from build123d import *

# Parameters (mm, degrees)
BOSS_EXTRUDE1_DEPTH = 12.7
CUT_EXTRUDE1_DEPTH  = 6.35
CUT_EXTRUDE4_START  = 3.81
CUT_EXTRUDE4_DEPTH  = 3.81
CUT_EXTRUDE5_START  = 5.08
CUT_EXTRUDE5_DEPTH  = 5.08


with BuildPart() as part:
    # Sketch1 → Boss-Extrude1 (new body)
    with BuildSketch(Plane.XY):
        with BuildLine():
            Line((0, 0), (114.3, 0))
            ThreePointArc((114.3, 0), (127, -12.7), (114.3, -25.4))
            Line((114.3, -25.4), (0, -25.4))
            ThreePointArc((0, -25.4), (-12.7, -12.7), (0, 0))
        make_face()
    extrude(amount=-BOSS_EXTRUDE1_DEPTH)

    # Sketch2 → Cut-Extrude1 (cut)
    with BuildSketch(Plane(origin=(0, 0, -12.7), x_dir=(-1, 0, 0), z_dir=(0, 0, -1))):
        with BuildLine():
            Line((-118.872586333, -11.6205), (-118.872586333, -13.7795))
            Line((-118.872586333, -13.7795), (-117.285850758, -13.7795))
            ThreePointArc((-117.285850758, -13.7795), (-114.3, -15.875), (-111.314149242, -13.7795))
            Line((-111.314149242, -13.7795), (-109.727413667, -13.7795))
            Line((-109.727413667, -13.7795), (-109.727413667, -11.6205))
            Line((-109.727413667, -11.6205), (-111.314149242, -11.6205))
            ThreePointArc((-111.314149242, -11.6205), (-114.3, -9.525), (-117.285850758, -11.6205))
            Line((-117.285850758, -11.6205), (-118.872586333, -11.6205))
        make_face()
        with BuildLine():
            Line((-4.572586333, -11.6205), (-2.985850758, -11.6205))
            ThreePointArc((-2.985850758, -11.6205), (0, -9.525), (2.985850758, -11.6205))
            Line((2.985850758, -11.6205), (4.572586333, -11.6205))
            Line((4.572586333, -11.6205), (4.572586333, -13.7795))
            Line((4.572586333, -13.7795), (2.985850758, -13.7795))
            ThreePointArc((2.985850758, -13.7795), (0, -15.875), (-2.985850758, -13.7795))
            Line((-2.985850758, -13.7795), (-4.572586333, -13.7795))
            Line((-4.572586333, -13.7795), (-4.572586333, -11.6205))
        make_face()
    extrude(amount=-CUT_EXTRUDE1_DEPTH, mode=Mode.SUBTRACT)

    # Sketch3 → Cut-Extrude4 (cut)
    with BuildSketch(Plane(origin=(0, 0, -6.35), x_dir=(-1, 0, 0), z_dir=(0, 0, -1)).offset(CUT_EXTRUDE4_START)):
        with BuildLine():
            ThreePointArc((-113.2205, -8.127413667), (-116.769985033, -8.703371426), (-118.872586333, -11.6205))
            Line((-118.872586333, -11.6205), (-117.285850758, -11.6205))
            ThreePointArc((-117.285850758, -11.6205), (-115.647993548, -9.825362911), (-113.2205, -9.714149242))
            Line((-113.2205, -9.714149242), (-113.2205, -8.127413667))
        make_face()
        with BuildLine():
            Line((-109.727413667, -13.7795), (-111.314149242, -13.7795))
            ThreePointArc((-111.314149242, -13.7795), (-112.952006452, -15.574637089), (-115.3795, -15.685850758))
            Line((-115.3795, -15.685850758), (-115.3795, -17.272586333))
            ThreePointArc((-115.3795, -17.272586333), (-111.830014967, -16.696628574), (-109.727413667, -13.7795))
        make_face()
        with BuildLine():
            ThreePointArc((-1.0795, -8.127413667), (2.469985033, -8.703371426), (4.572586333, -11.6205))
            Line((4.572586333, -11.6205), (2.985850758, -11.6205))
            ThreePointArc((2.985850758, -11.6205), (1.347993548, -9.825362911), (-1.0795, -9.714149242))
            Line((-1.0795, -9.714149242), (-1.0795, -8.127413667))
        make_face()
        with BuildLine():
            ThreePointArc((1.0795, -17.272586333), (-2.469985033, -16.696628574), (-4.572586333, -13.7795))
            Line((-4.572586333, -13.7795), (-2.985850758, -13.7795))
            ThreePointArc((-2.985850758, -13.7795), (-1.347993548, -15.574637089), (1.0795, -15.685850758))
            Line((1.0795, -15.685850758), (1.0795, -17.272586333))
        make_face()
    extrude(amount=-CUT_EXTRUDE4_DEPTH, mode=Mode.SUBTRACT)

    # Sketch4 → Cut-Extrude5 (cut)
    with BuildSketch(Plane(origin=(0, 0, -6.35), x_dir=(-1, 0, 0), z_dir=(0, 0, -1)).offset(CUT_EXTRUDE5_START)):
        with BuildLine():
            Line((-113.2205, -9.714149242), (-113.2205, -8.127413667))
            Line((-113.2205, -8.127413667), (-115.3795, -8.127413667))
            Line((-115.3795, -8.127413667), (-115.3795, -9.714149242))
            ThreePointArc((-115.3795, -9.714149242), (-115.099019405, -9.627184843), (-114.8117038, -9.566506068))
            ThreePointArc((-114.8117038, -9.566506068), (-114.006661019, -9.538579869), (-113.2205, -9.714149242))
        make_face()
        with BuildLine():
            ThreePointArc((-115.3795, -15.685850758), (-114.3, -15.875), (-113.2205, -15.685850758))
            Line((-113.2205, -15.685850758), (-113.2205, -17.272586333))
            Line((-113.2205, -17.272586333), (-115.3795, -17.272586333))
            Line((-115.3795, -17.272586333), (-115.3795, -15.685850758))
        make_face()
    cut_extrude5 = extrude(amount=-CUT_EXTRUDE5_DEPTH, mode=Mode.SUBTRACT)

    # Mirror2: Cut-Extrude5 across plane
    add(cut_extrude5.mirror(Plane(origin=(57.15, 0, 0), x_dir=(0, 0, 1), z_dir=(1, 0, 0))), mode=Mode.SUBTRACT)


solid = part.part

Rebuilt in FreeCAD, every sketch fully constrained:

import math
import FreeCAD as App
import Part
import Sketcher
from FreeCAD import Vector
Q = App.Units.Quantity

doc = App.newDocument("Part")
body = doc.addObject("PartDesign::Body", "Body")

# Sketch on XY plane
sketch1 = body.newObject("Sketcher::SketchObject", "Sketch")
sketch1.AttachmentSupport = (doc.getObject("XY_Plane"), [""])
sketch1.MapMode = "FlatFace"
sketch1.addGeometry(Part.LineSegment(Vector(114, 0, 0), Vector(0, 0, 0)), False)
sketch1.addGeometry(Part.ArcOfCircle(Part.Circle(Vector(0, -13, 0), Vector(0, 0, 1), 13), math.radians(90), math.radians(270)), False)
sketch1.addGeometry(Part.LineSegment(Vector(0, -25, 0), Vector(114, -25, 0)), False)
sketch1.addGeometry(Part.ArcOfCircle(Part.Circle(Vector(114, -13, 0), Vector(0, 0, 1), 13), math.radians(-90), math.radians(90)), False)
sketch1.addConstraint(Sketcher.Constraint("Tangent", 0, 2, 1, 1))
sketch1.addConstraint(Sketcher.Constraint("Tangent", 1, 2, 2, 1))
sketch1.addConstraint(Sketcher.Constraint("Tangent", 2, 2, 3, 1))
sketch1.addConstraint(Sketcher.Constraint("Tangent", 3, 2, 0, 1))
sketch1.addConstraint(Sketcher.Constraint("Horizontal", 0))
sketch1.addConstraint(Sketcher.Constraint("Horizontal", 2))
sketch1.addConstraint(Sketcher.Constraint("Coincident", 0, 2, -1, 1))
sketch1.addConstraint(Sketcher.Constraint("Radius", 1, Q("0.5 in")))
sketch1.addConstraint(Sketcher.Constraint("DistanceX", 0, 2, 0, 1, Q("4.5 in")))
pad1 = body.newObject("PartDesign::Pad", "Pad")
pad1.Profile = sketch1
pad1.Length = Q("0.5 in")
pad1.Reversed = True

# Sketch on XY plane
sketch2 = body.newObject("Sketcher::SketchObject", "Sketch001")
sketch2.AttachmentSupport = (doc.getObject("XY_Plane"), [""])
sketch2.MapMode = "FlatFace"
sketch2.AttachmentOffset = App.Placement(Vector(0, 0, -0.5 * 25.4), App.Rotation())
sketch2.addGeometry(Part.LineSegment(Vector(118.9, -11.6, 0), Vector(118.9, -13.8, 0)), False)
sketch2.addGeometry(Part.LineSegment(Vector(118.9, -13.8, 0), Vector(117.3, -13.8, 0)), False)
sketch2.addGeometry(Part.ArcOfCircle(Part.Circle(Vector(114.3, -12.7, 0), Vector(0, 0, 1), 3.2), math.radians(-160), math.radians(-20)), False)
sketch2.addGeometry(Part.LineSegment(Vector(111.3, -13.8, 0), Vector(109.7, -13.8, 0)), False)
sketch2.addGeometry(Part.LineSegment(Vector(109.7, -13.8, 0), Vector(109.7, -11.6, 0)), False)
sketch2.addGeometry(Part.LineSegment(Vector(109.7, -11.6, 0), Vector(111.3, -11.6, 0)), False)
sketch2.addGeometry(Part.ArcOfCircle(Part.Circle(Vector(114.3, -12.7, 0), Vector(0, 0, 1), 3.2), math.radians(20), math.radians(160)), False)
sketch2.addGeometry(Part.LineSegment(Vector(117.3, -11.6, 0), Vector(118.9, -11.6, 0)), False)
sketch2.addGeometry(Part.LineSegment(Vector(3, -11.6, 0), Vector(4.6, -11.6, 0)), False)
sketch2.addGeometry(Part.LineSegment(Vector(4.6, -11.6, 0), Vector(4.6, -13.8, 0)), False)
sketch2.addGeometry(Part.LineSegment(Vector(4.6, -13.8, 0), Vector(3, -13.8, 0)), False)
sketch2.addGeometry(Part.ArcOfCircle(Part.Circle(Vector(0, -12.7, 0), Vector(0, 0, 1), 3.2), math.radians(-160), math.radians(-20)), False)
sketch2.addGeometry(Part.LineSegment(Vector(-3, -13.8, 0), Vector(-4.6, -13.8, 0)), False)
sketch2.addGeometry(Part.LineSegment(Vector(-4.6, -13.8, 0), Vector(-4.6, -11.6, 0)), False)
sketch2.addGeometry(Part.LineSegment(Vector(-4.6, -11.6, 0), Vector(-3, -11.6, 0)), False)
sketch2.addGeometry(Part.ArcOfCircle(Part.Circle(Vector(0, -12.7, 0), Vector(0, 0, 1), 3.2), math.radians(20), math.radians(160)), False)
sketch2.addConstraint(Sketcher.Constraint("Coincident", 0, 2, 1, 1))
sketch2.addConstraint(Sketcher.Constraint("Coincident", 1, 2, 2, 2))
sketch2.addConstraint(Sketcher.Constraint("Coincident", 2, 1, 3, 1))
sketch2.addConstraint(Sketcher.Constraint("Coincident", 3, 2, 4, 1))
sketch2.addConstraint(Sketcher.Constraint("Coincident", 4, 2, 5, 1))
sketch2.addConstraint(Sketcher.Constraint("Coincident", 5, 2, 6, 2))
sketch2.addConstraint(Sketcher.Constraint("Coincident", 6, 1, 7, 1))
sketch2.addConstraint(Sketcher.Constraint("Coincident", 7, 2, 0, 1))
sketch2.addConstraint(Sketcher.Constraint("Coincident", 8, 2, 9, 1))
sketch2.addConstraint(Sketcher.Constraint("Coincident", 9, 2, 10, 1))
sketch2.addConstraint(Sketcher.Constraint("Coincident", 10, 2, 11, 2))
sketch2.addConstraint(Sketcher.Constraint("Coincident", 11, 1, 12, 1))
sketch2.addConstraint(Sketcher.Constraint("Coincident", 12, 2, 13, 1))
sketch2.addConstraint(Sketcher.Constraint("Coincident", 13, 2, 14, 1))
sketch2.addConstraint(Sketcher.Constraint("Coincident", 14, 2, 15, 2))
sketch2.addConstraint(Sketcher.Constraint("Coincident", 15, 1, 8, 1))
sketch2.addConstraint(Sketcher.Constraint("Vertical", 0))
sketch2.addConstraint(Sketcher.Constraint("Horizontal", 1))
sketch2.addConstraint(Sketcher.Constraint("Horizontal", 3))
sketch2.addConstraint(Sketcher.Constraint("Vertical", 4))
sketch2.addConstraint(Sketcher.Constraint("Horizontal", 5))
sketch2.addConstraint(Sketcher.Constraint("Horizontal", 7))
sketch2.addConstraint(Sketcher.Constraint("Horizontal", 8))
sketch2.addConstraint(Sketcher.Constraint("Vertical", 9))
sketch2.addConstraint(Sketcher.Constraint("Horizontal", 10))
sketch2.addConstraint(Sketcher.Constraint("Horizontal", 12))
sketch2.addConstraint(Sketcher.Constraint("Vertical", 13))
sketch2.addConstraint(Sketcher.Constraint("Horizontal", 14))
sketch2.addConstraint(Sketcher.Constraint("Coincident", 6, 3, 2, 3))
sketch2.addConstraint(Sketcher.Constraint("Coincident", 15, 3, 11, 3))
sketch2.addConstraint(Sketcher.Constraint("Equal", 2, 6))
sketch2.addConstraint(Sketcher.Constraint("Equal", 6, 11))
sketch2.addConstraint(Sketcher.Constraint("Equal", 11, 15))
sketch2.addConstraint(Sketcher.Constraint("Symmetric", 10, 2, 11, 1, -2))
sketch2.addConstraint(Sketcher.Constraint("Symmetric", 8, 2, 13, 2, -2))
sketch2.addConstraint(Sketcher.Constraint("Horizontal", 6, 3, 11, 3))
sketch2.addConstraint(Sketcher.Constraint("Horizontal", 1, 2, 2, 1))
sketch2.addConstraint(Sketcher.Constraint("Horizontal", 5, 2, 6, 1))
sketch2.addConstraint(Sketcher.Constraint("Horizontal", 7, 2, 8, 2))
sketch2.addConstraint(Sketcher.Constraint("Horizontal", 3, 2, 9, 2))
sketch2.addConstraint(Sketcher.Constraint("Vertical", 2, 1, 5, 2))
sketch2.addConstraint(Sketcher.Constraint("Equal", 1, 3))
sketch2.addConstraint(Sketcher.Constraint("Equal", 7, 8))
sketch2.addConstraint(Sketcher.Constraint("Radius", 2, Q("0.125 in")))
sketch2.addConstraint(Sketcher.Constraint("DistanceX", -1, 1, 2, 3, Q("4.5 in")))
sketch2.addConstraint(Sketcher.Constraint("DistanceY", 2, 3, -1, 1, Q("0.5 in")))
sketch2.addConstraint(Sketcher.Constraint("DistanceY", 0, 2, 0, 1, Q("0.085 in")))
sketch2.addConstraint(Sketcher.Constraint("DistanceX", 1, 2, 1, 1, Q("1.586736 mm")))
pocket1 = body.newObject("PartDesign::Pocket", "Pocket")
pocket1.Profile = sketch2
pocket1.Length = Q("0.25 in")
pocket1.Reversed = True

# Sketch on XY plane
sketch3 = body.newObject("Sketcher::SketchObject", "Sketch002")
sketch3.AttachmentSupport = (doc.getObject("XY_Plane"), [""])
sketch3.MapMode = "FlatFace"
sketch3.AttachmentOffset = App.Placement(Vector(0, 0, -0.4 * 25.4), App.Rotation())
sketch3.addGeometry(Part.ArcOfCircle(Part.Circle(Vector(114.3, -12.7, 0), Vector(0, 0, 1), 4.7), math.radians(13), math.radians(103)), False)
sketch3.addGeometry(Part.LineSegment(Vector(118.9, -11.6, 0), Vector(117.3, -11.6, 0)), False)
sketch3.addGeometry(Part.ArcOfCircle(Part.Circle(Vector(114.3, -12.7, 0), Vector(0, 0, 1), 3.2), math.radians(20), math.radians(110)), False)
sketch3.addGeometry(Part.LineSegment(Vector(113.2, -9.7, 0), Vector(113.2, -8.1, 0)), False)
sketch3.addGeometry(Part.LineSegment(Vector(109.7, -13.8, 0), Vector(111.3, -13.8, 0)), False)
sketch3.addGeometry(Part.ArcOfCircle(Part.Circle(Vector(114.3, -12.7, 0), Vector(0, 0, 1), 3.2), math.radians(-160), math.radians(-70)), False)
sketch3.addGeometry(Part.LineSegment(Vector(115.4, -15.7, 0), Vector(115.4, -17.3, 0)), False)
sketch3.addGeometry(Part.ArcOfCircle(Part.Circle(Vector(114.3, -12.7, 0), Vector(0, 0, 1), 4.7), math.radians(-167), math.radians(-77)), False)
sketch3.addGeometry(Part.ArcOfCircle(Part.Circle(Vector(0, -12.7, 0), Vector(0, 0, 1), 4.7), math.radians(77), math.radians(167)), False)
sketch3.addGeometry(Part.LineSegment(Vector(1.1, -8.1, 0), Vector(1.1, -9.7, 0)), False)
sketch3.addGeometry(Part.ArcOfCircle(Part.Circle(Vector(0, -12.7, 0), Vector(0, 0, 1), 3.2), math.radians(70), math.radians(160)), False)
sketch3.addGeometry(Part.LineSegment(Vector(-3, -11.6, 0), Vector(-4.6, -11.6, 0)), False)
sketch3.addGeometry(Part.ArcOfCircle(Part.Circle(Vector(0, -12.7, 0), Vector(0, 0, 1), 4.7), math.radians(-103), math.radians(-13)), False)
sketch3.addGeometry(Part.LineSegment(Vector(-1.1, -17.3, 0), Vector(-1.1, -15.7, 0)), False)
sketch3.addGeometry(Part.ArcOfCircle(Part.Circle(Vector(0, -12.7, 0), Vector(0, 0, 1), 3.2), math.radians(-110), math.radians(-20)), False)
sketch3.addGeometry(Part.LineSegment(Vector(3, -13.8, 0), Vector(4.6, -13.8, 0)), False)
sketch3.addConstraint(Sketcher.Constraint("Coincident", 0, 1, 1, 1))
sketch3.addConstraint(Sketcher.Constraint("Coincident", 1, 2, 2, 1))
sketch3.addConstraint(Sketcher.Constraint("Coincident", 2, 2, 3, 1))
sketch3.addConstraint(Sketcher.Constraint("Coincident", 3, 2, 0, 2))
sketch3.addConstraint(Sketcher.Constraint("Coincident", 4, 2, 5, 1))
sketch3.addConstraint(Sketcher.Constraint("Coincident", 5, 2, 6, 1))
sketch3.addConstraint(Sketcher.Constraint("Coincident", 6, 2, 7, 2))
sketch3.addConstraint(Sketcher.Constraint("Coincident", 7, 1, 4, 1))
sketch3.addConstraint(Sketcher.Constraint("Coincident", 8, 1, 9, 1))
sketch3.addConstraint(Sketcher.Constraint("Coincident", 9, 2, 10, 1))
sketch3.addConstraint(Sketcher.Constraint("Coincident", 10, 2, 11, 1))
sketch3.addConstraint(Sketcher.Constraint("Coincident", 11, 2, 8, 2))
sketch3.addConstraint(Sketcher.Constraint("Coincident", 12, 1, 13, 1))
sketch3.addConstraint(Sketcher.Constraint("Coincident", 13, 2, 14, 1))
sketch3.addConstraint(Sketcher.Constraint("Coincident", 14, 2, 15, 1))
sketch3.addConstraint(Sketcher.Constraint("Coincident", 15, 2, 12, 2))
sketch3.addConstraint(Sketcher.Constraint("Horizontal", 1))
sketch3.addConstraint(Sketcher.Constraint("Vertical", 3))
sketch3.addConstraint(Sketcher.Constraint("Horizontal", 4))
sketch3.addConstraint(Sketcher.Constraint("Vertical", 6))
sketch3.addConstraint(Sketcher.Constraint("Vertical", 9))
sketch3.addConstraint(Sketcher.Constraint("Horizontal", 11))
sketch3.addConstraint(Sketcher.Constraint("Vertical", 13))
sketch3.addConstraint(Sketcher.Constraint("Horizontal", 15))
sketch3.addConstraint(Sketcher.Constraint("Coincident", 2, 3, 0, 3))
sketch3.addConstraint(Sketcher.Constraint("Coincident", 5, 3, 0, 3))
sketch3.addConstraint(Sketcher.Constraint("Coincident", 7, 3, 0, 3))
sketch3.addConstraint(Sketcher.Constraint("Coincident", 10, 3, 8, 3))
sketch3.addConstraint(Sketcher.Constraint("Coincident", 12, 3, 8, 3))
sketch3.addConstraint(Sketcher.Constraint("Coincident", 14, 3, 8, 3))
sketch3.addConstraint(Sketcher.Constraint("Equal", 2, 5))
sketch3.addConstraint(Sketcher.Constraint("Equal", 0, 7))
sketch3.addConstraint(Sketcher.Constraint("Equal", 7, 8))
sketch3.addConstraint(Sketcher.Constraint("Equal", 5, 10))
sketch3.addConstraint(Sketcher.Constraint("Equal", 8, 12))
sketch3.addConstraint(Sketcher.Constraint("Equal", 10, 14))
sketch3.addConstraint(Sketcher.Constraint("PointOnObject", 8, 3, -2))
sketch3.addConstraint(Sketcher.Constraint("Horizontal", 7, 3, 8, 3))
sketch3.addConstraint(Sketcher.Constraint("Horizontal", 3, 2, 8, 1))
sketch3.addConstraint(Sketcher.Constraint("Horizontal", 1, 2, 10, 2))
sketch3.addConstraint(Sketcher.Constraint("Horizontal", 6, 2, 12, 1))
sketch3.addConstraint(Sketcher.Constraint("Horizontal", 7, 1, 14, 2))
sketch3.addConstraint(Sketcher.Constraint("Equal", 1, 4))
sketch3.addConstraint(Sketcher.Constraint("Equal", 15, 3))
sketch3.addConstraint(Sketcher.Constraint("Equal", 3, 6))
sketch3.addConstraint(Sketcher.Constraint("Radius", 2, Q("0.125 in")))
sketch3.addConstraint(Sketcher.Constraint("DistanceX", -1, 1, 0, 3, Q("4.5 in")))
sketch3.addConstraint(Sketcher.Constraint("DistanceY", 0, 3, -1, 1, Q("0.5 in")))
sketch3.addConstraint(Sketcher.Constraint("DistanceY", 0, 1, -1, 1, Q("0.4575 in")))
sketch3.addConstraint(Sketcher.Constraint("Radius", 0, Q("4.698283 mm")))
pocket2 = body.newObject("PartDesign::Pocket", "Pocket001")
pocket2.Profile = sketch3
pocket2.Length = Q("0.15 in")
pocket2.Reversed = True

# Sketch on XY plane
sketch4 = body.newObject("Sketcher::SketchObject", "Sketch003")
sketch4.AttachmentSupport = (doc.getObject("XY_Plane"), [""])
sketch4.MapMode = "FlatFace"
sketch4.AttachmentOffset = App.Placement(Vector(0, 0, -0.45 * 25.4), App.Rotation())
sketch4.addGeometry(Part.LineSegment(Vector(113.2, -9.7, 0), Vector(113.2, -8.1, 0)), False)
sketch4.addGeometry(Part.LineSegment(Vector(113.2, -8.1, 0), Vector(115.4, -8.1, 0)), False)
sketch4.addGeometry(Part.LineSegment(Vector(115.4, -8.1, 0), Vector(115.4, -9.7, 0)), False)
sketch4.addGeometry(Part.ArcOfCircle(Part.Circle(Vector(114.3, -12.7, 0), Vector(0, 0, 1), 3.2), math.radians(70.12), math.radians(80.73)), False)
sketch4.addGeometry(Part.ArcOfCircle(Part.Circle(Vector(114.3, -12.7, 0), Vector(0, 0, 1), 3.2), math.radians(81), math.radians(110)), False)
sketch4.addGeometry(Part.ArcOfCircle(Part.Circle(Vector(114.3, -12.7, 0), Vector(0, 0, 1), 3.2), math.radians(-110), math.radians(-70)), False)
sketch4.addGeometry(Part.LineSegment(Vector(115.4, -15.7, 0), Vector(115.4, -17.3, 0)), False)
sketch4.addGeometry(Part.LineSegment(Vector(115.4, -17.3, 0), Vector(113.2, -17.3, 0)), False)
sketch4.addGeometry(Part.LineSegment(Vector(113.2, -17.3, 0), Vector(113.2, -15.7, 0)), False)
sketch4.addConstraint(Sketcher.Constraint("Coincident", 0, 2, 1, 1))
sketch4.addConstraint(Sketcher.Constraint("Coincident", 1, 2, 2, 1))
sketch4.addConstraint(Sketcher.Constraint("Coincident", 2, 2, 3, 1))
sketch4.addConstraint(Sketcher.Constraint("Tangent", 3, 2, 4, 1))
sketch4.addConstraint(Sketcher.Constraint("Coincident", 4, 2, 0, 1))
sketch4.addConstraint(Sketcher.Constraint("Coincident", 5, 2, 6, 1))
sketch4.addConstraint(Sketcher.Constraint("Coincident", 6, 2, 7, 1))
sketch4.addConstraint(Sketcher.Constraint("Coincident", 7, 2, 8, 1))
sketch4.addConstraint(Sketcher.Constraint("Coincident", 8, 2, 5, 1))
sketch4.addConstraint(Sketcher.Constraint("Vertical", 0))
sketch4.addConstraint(Sketcher.Constraint("Horizontal", 1))
sketch4.addConstraint(Sketcher.Constraint("Vertical", 2))
sketch4.addConstraint(Sketcher.Constraint("Vertical", 6))
sketch4.addConstraint(Sketcher.Constraint("Horizontal", 7))
sketch4.addConstraint(Sketcher.Constraint("Vertical", 8))
sketch4.addConstraint(Sketcher.Constraint("Coincident", 5, 3, 3, 3))
sketch4.addConstraint(Sketcher.Constraint("Equal", 3, 4))
sketch4.addConstraint(Sketcher.Constraint("Equal", 4, 5))
sketch4.addConstraint(Sketcher.Constraint("Horizontal", 2, 2, 4, 2))
sketch4.addConstraint(Sketcher.Constraint("Horizontal", 5, 2, 8, 2))
sketch4.addConstraint(Sketcher.Constraint("Vertical", 2, 2, 5, 2))
sketch4.addConstraint(Sketcher.Constraint("Equal", 2, 6))
sketch4.addConstraint(Sketcher.Constraint("Radius", 3, Q("0.125 in")))
sketch4.addConstraint(Sketcher.Constraint("DistanceX", -1, 1, 3, 3, Q("4.5 in")))
sketch4.addConstraint(Sketcher.Constraint("DistanceY", 3, 3, -1, 1, Q("0.5 in")))
sketch4.addConstraint(Sketcher.Constraint("DistanceX", 1, 1, 1, 2, Q("0.085 in")))
sketch4.addConstraint(Sketcher.Constraint("DistanceY", 0, 1, 0, 2, Q("1.586736 mm")))
sketch4.addConstraint(Sketcher.Constraint("DistanceX", -1, 1, 3, 2, Q("114.811704 mm")))
pocket3 = body.newObject("PartDesign::Pocket", "Pocket002")
pocket3.Profile = sketch4
pocket3.Length = Q("0.2 in")
pocket3.Reversed = True
doc.recompute()

datumplane = body.newObject("PartDesign::Plane", "DatumPlane")
datumplane.AttachmentSupport = (doc.getObject("YZ_Plane"), [""])
datumplane.MapMode = "FlatFace"
datumplane.AttachmentOffset = App.Placement(Vector(0, 0, 2.25 * 25.4), App.Rotation())
mirrored = body.newObject("PartDesign::Mirrored", "Mirrored")
mirrored.Originals = [pocket3]
mirrored.MirrorPlane = (datumplane, [""])
body.Tip = mirrored

doc.recompute()
